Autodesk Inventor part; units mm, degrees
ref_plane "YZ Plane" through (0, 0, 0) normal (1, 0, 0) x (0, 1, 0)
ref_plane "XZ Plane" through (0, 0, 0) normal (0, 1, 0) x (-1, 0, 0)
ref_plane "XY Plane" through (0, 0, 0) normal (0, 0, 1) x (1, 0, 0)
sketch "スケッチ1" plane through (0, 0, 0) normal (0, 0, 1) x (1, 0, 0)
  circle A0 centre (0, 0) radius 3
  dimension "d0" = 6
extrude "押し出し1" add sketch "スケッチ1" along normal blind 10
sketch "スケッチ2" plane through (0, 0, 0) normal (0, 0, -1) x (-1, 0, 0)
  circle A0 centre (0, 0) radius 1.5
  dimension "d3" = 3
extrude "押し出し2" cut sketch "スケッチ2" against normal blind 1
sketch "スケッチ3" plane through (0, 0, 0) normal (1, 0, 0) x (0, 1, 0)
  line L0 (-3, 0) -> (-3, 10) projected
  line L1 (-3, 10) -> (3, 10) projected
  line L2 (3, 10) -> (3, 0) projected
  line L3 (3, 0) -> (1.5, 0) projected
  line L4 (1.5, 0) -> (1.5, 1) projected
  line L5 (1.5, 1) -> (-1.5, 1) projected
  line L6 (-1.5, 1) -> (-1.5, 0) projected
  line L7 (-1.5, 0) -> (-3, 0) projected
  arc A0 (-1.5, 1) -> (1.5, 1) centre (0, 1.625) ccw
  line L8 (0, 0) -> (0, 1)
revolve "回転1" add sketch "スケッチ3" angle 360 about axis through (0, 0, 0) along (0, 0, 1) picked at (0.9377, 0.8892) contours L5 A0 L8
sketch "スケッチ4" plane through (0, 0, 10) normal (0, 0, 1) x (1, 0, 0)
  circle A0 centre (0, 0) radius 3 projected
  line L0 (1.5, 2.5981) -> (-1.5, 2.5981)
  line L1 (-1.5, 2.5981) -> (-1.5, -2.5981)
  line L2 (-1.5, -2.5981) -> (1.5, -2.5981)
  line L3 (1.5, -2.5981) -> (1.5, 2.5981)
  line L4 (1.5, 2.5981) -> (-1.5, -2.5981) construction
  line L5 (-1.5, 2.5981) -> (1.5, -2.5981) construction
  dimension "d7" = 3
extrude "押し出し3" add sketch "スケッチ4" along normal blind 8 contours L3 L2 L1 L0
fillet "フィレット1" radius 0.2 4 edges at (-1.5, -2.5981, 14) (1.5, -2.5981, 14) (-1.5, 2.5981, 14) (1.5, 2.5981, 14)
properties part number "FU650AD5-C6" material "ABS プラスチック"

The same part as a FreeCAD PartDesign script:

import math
import FreeCAD as App
import Part
import Sketcher

V = App.Vector
Q = App.Units.Quantity


def edges_at(feature, points):
    """Names of the edges that pass closest to the given points."""
    edges = feature.Shape.Edges
    near = lambda p: min(range(len(edges)), key=lambda i: edges[i].distToShape(Part.Vertex(*p))[0])
    return sorted({f"Edge{near(p) + 1}" for p in points})

doc = App.newDocument("Part")
body = doc.addObject("PartDesign::Body", "Body")

sketch1 = body.newObject("Sketcher::SketchObject", "Sketch")
sketch1.AttachmentSupport = (doc.getObject("XY_Plane"), [""])
sketch1.MapMode = "FlatFace"
sketch1.addGeometry(Part.Circle(V(0, 0, 0), V(0, 0, 1), 3), False)
sketch1.addConstraint(Sketcher.Constraint("Coincident", 0, 3, -1, 1))
sketch1.addConstraint(Sketcher.Constraint("Diameter", 0, Q("6 mm")))
pad1 = body.newObject("PartDesign::Pad", "Pad")
pad1.Profile = sketch1
pad1.Length = 10

sketch2 = body.newObject("Sketcher::SketchObject", "Sketch001")
sketch2.AttachmentSupport = (doc.getObject("XY_Plane"), [""])
sketch2.MapMode = "FlatFace"
sketch2.addGeometry(Part.Circle(V(0, 0, 0), V(0, 0, 1), 1.5), False)
sketch2.addConstraint(Sketcher.Constraint("Coincident", 0, 3, -1, 1))
sketch2.addConstraint(Sketcher.Constraint("Diameter", 0, Q("3 mm")))
pocket1 = body.newObject("PartDesign::Pocket", "Pocket")
pocket1.Profile = sketch2
pocket1.Length = 1
pocket1.Reversed = True

sketch3 = body.newObject("Sketcher::SketchObject", "Sketch002")
sketch3.AttachmentSupport = (doc.getObject("YZ_Plane"), [""])
sketch3.MapMode = "FlatFace"
sketch3.addGeometry(Part.LineSegment(V(1.5, 1, 0), V(0, 1, 0)), False)
sketch3.addGeometry(Part.LineSegment(V(0, 1, 0), V(0, 0, 0)), False)
sketch3.addGeometry(Part.ArcOfCircle(Part.Circle(V(0, 1.625, 0), V(0, 0, 1), 1.625), math.radians(-90), math.radians(-22.619865)), False)
sketch3.addConstraint(Sketcher.Constraint("Coincident", 0, 2, 1, 1))
sketch3.addConstraint(Sketcher.Constraint("Coincident", 1, 2, 2, 1))
sketch3.addConstraint(Sketcher.Constraint("Coincident", 2, 2, 0, 1))
sketch3.addConstraint(Sketcher.Constraint("Horizontal", 0))
sketch3.addConstraint(Sketcher.Constraint("Vertical", 1))
sketch3.addConstraint(Sketcher.Constraint("Coincident", 1, 2, -1, 1))
sketch3.addConstraint(Sketcher.Constraint("PointOnObject", 2, 3, -2))
sketch3.addConstraint(Sketcher.Constraint("DistanceY", 1, 2, 1, 1, Q("1 mm")))
sketch3.addConstraint(Sketcher.Constraint("DistanceX", 0, 2, 0, 1, Q("1.5 mm")))
revolution = body.newObject("PartDesign::Revolution", "Revolution")
revolution.Profile = sketch3
revolution.ReferenceAxis = (sketch3, ["V_Axis"])
revolution.Angle = 360

sketch4 = body.newObject("Sketcher::SketchObject", "Sketch003")
sketch4.AttachmentSupport = (doc.getObject("XY_Plane"), [""])
sketch4.MapMode = "FlatFace"
sketch4.AttachmentOffset = App.Placement(V(0, 0, 10), App.Rotation())
sketch4.addGeometry(Part.LineSegment(V(1.5, -2.5981, 0), V(1.5, 2.5981, 0)), False)
sketch4.addGeometry(Part.LineSegment(V(1.5, 2.5981, 0), V(-1.5, 2.5981, 0)), False)
sketch4.addGeometry(Part.LineSegment(V(-1.5, 2.5981, 0), V(-1.5, -2.5981, 0)), False)
sketch4.addGeometry(Part.LineSegment(V(-1.5, -2.5981, 0), V(1.5, -2.5981, 0)), False)
sketch4.addConstraint(Sketcher.Constraint("Coincident", 0, 2, 1, 1))
sketch4.addConstraint(Sketcher.Constraint("Coincident", 1, 2, 2, 1))
sketch4.addConstraint(Sketcher.Constraint("Coincident", 2, 2, 3, 1))
sketch4.addConstraint(Sketcher.Constraint("Coincident", 3, 2, 0, 1))
sketch4.addConstraint(Sketcher.Constraint("Vertical", 0))
sketch4.addConstraint(Sketcher.Constraint("Horizontal", 1))
sketch4.addConstraint(Sketcher.Constraint("Vertical", 2))
sketch4.addConstraint(Sketcher.Constraint("Horizontal", 3))
sketch4.addConstraint(Sketcher.Constraint("Symmetric", 0, 2, 2, 2, -1, 1))
sketch4.addConstraint(Sketcher.Constraint("DistanceX", 1, 2, 1, 1, Q("3 mm")))
sketch4.addConstraint(Sketcher.Constraint("DistanceY", 0, 1, 0, 2, Q("5.1962 mm")))
pad2 = body.newObject("PartDesign::Pad", "Pad001")
pad2.Profile = sketch4
pad2.Length = 8
doc.recompute()

fillet = body.newObject("PartDesign::Fillet", "Fillet")
fillet.Base = (pad2, edges_at(pad2, [
    (-1.5, -2.598, 14),
    (1.5, -2.598, 14),
    (-1.5, 2.598, 14),
    (1.5, 2.598, 14),
]))
fillet.Radius = 0.2

doc.recompute()
